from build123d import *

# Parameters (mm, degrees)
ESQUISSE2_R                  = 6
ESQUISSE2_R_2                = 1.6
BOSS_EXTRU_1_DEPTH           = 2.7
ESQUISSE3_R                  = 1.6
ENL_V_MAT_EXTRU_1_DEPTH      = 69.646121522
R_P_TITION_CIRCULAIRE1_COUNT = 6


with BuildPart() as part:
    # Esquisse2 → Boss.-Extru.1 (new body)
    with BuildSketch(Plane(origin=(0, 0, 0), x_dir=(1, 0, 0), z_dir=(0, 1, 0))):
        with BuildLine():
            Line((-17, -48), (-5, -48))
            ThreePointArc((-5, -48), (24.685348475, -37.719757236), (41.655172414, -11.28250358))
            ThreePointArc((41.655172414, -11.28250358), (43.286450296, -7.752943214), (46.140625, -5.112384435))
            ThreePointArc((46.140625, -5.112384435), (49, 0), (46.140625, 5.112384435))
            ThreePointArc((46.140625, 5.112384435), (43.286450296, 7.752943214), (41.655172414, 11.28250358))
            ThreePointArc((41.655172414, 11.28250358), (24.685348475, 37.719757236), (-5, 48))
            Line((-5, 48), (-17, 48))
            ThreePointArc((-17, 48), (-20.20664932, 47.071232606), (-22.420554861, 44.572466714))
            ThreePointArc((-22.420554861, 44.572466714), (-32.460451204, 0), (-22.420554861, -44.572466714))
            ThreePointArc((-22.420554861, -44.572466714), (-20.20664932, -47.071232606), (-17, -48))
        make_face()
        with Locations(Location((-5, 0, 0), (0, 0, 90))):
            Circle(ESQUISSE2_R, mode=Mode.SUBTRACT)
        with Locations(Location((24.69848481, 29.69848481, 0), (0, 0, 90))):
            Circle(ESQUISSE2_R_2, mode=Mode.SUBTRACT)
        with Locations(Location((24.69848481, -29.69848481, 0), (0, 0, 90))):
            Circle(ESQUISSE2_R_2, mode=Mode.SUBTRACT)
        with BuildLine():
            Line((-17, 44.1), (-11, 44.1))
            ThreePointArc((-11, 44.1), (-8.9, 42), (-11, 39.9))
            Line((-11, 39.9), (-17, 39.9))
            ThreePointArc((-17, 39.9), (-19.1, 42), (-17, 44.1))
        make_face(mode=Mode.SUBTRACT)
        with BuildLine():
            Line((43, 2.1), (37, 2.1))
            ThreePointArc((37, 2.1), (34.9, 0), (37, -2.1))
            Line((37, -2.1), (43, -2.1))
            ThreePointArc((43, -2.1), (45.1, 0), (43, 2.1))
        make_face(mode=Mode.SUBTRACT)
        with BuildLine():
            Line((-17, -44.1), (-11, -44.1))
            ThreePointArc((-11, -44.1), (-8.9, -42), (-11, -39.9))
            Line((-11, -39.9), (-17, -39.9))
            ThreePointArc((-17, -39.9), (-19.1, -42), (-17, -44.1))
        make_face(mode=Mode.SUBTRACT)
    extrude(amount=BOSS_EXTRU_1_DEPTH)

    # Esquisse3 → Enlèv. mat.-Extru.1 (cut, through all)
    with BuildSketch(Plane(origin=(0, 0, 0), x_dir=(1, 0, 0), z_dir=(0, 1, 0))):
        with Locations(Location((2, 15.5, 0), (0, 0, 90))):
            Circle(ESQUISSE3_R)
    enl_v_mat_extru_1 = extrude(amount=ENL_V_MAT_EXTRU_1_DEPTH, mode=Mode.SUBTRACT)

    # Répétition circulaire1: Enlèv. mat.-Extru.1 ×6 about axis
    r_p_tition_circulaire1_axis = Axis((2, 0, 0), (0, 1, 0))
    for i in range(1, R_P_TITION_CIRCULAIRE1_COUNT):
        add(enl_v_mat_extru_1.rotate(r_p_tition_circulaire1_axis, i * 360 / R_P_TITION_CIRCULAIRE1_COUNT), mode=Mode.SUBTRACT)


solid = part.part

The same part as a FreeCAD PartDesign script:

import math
import FreeCAD as App
import Part
import Sketcher

V = App.Vector

doc = App.newDocument("Part")
body = doc.addObject("PartDesign::Body", "Body")

# Sketch on XZ plane
sketch1 = body.newObject("Sketcher::SketchObject", "Sketch")
sketch1.AttachmentSupport = (doc.getObject("XZ_Plane"), [""])
sketch1.MapMode = "FlatFace"
sketch1.addGeometry([
    Part.LineSegment(V(-17, 48, 0), V(-5, 48, 0)),  # 0
    Part.ArcOfCircle(Part.Circle(V(-5, 0, 0), V(0, 0, 1), 48), math.radians(14), math.radians(90)),  # 1
    Part.ArcOfCircle(Part.Circle(V(51.4, 13.6, 0), V(0, 0, 1), 10), math.radians(-166), math.radians(-122)),  # 2
    Part.ArcOfCircle(Part.Circle(V(43, 0, 0), V(0, 0, 1), 6), math.radians(-58), math.radians(58)),  # 3
    Part.ArcOfCircle(Part.Circle(V(51.4, -13.6, 0), V(0, 0, 1), 10), math.radians(122), math.radians(166)),  # 4
    Part.ArcOfCircle(Part.Circle(V(-5, 0, 0), V(0, 0, 1), 48), math.radians(-90), math.radians(-14)),  # 5
    Part.LineSegment(V(-5, -48, 0), V(-17, -48, 0)),  # 6
    Part.ArcOfCircle(Part.Circle(V(-17, -42, 0), V(0, 0, 1), 6), math.radians(-155), math.radians(-90)),  # 7
    Part.ArcOfCircle(Part.Circle(V(71.5, 0, 0), V(0, 0, 1), 104), math.radians(155), math.radians(205)),  # 8
    Part.ArcOfCircle(Part.Circle(V(-17, 42, 0), V(0, 0, 1), 6), math.radians(90), math.radians(155)),  # 9
    Part.LineSegment(V(-11, 44.1, 0), V(-17, 44.1, 0)),  # 10
    Part.ArcOfCircle(Part.Circle(V(-17, 42, 0), V(0, 0, 1), 2.1), math.radians(90), math.radians(270)),  # 11
    Part.LineSegment(V(-17, 39.9, 0), V(-11, 39.9, 0)),  # 12
    Part.ArcOfCircle(Part.Circle(V(-11, 42, 0), V(0, 0, 1), 2.1), math.radians(-90), math.radians(90)),  # 13
    Part.Circle(V(24.7, 29.7, 0), V(0, 0, 1), 1.6),  # 14
    Part.Circle(V(-5, 0, 0), V(0, 0, 1), 6),  # 15
    Part.ArcOfCircle(Part.Circle(V(-17, -42, 0), V(0, 0, 1), 2.1), math.radians(90), math.radians(270)),  # 16
    Part.LineSegment(V(-17, -44.1, 0), V(-11, -44.1, 0)),  # 17
    Part.ArcOfCircle(Part.Circle(V(-11, -42, 0), V(0, 0, 1), 2.1), math.radians(-90), math.radians(90)),  # 18
    Part.LineSegment(V(-11, -39.9, 0), V(-17, -39.9, 0)),  # 19
    Part.LineSegment(V(37, -2.1, 0), V(43, -2.1, 0)),  # 20
    Part.ArcOfCircle(Part.Circle(V(43, 0, 0), V(0, 0, 1), 2.1), math.radians(-90), math.radians(90)),  # 21
    Part.LineSegment(V(43, 2.1, 0), V(37, 2.1, 0)),  # 22
    Part.ArcOfCircle(Part.Circle(V(37, 0, 0), V(0, 0, 1), 2.1), math.radians(90), math.radians(270)),  # 23
    Part.Circle(V(24.7, -29.7, 0), V(0, 0, 1), 1.6),  # 24
], False)
sketch1.addConstraint([
    Sketcher.Constraint("Tangent", 0, 2, 1, 2),
    Sketcher.Constraint("Tangent", 1, 1, 2, 1),
    Sketcher.Constraint("Tangent", 2, 2, 3, 2),
    Sketcher.Constraint("Tangent", 3, 1, 4, 1),
    Sketcher.Constraint("Tangent", 4, 2, 5, 2),
    Sketcher.Constraint("Tangent", 5, 1, 6, 1),
    Sketcher.Constraint("Tangent", 6, 2, 7, 2),
    Sketcher.Constraint("Tangent", 7, 1, 8, 2),
    Sketcher.Constraint("Tangent", 8, 1, 9, 2),
    Sketcher.Constraint("Tangent", 9, 1, 0, 1),
    Sketcher.Constraint("Tangent", 10, 2, 11, 1),
    Sketcher.Constraint("Tangent", 11, 2, 12, 1),
    Sketcher.Constraint("Tangent", 12, 2, 13, 1),
    Sketcher.Constraint("Tangent", 13, 2, 10, 1),
    Sketcher.Constraint("Tangent", 16, 2, 17, 1),
    Sketcher.Constraint("Tangent", 17, 2, 18, 1),
    Sketcher.Constraint("Tangent", 18, 2, 19, 1),
    Sketcher.Constraint("Tangent", 19, 2, 16, 1),
    Sketcher.Constraint("Tangent", 20, 2, 21, 1),
    Sketcher.Constraint("Tangent", 21, 2, 22, 1),
    Sketcher.Constraint("Tangent", 22, 2, 23, 1),
    Sketcher.Constraint("Tangent", 23, 2, 20, 1),
    Sketcher.Constraint("Horizontal", 0),
    Sketcher.Constraint("Horizontal", 6),
    Sketcher.Constraint("Horizontal", 10),
    Sketcher.Constraint("Horizontal", 12),
    Sketcher.Constraint("Horizontal", 17),
    Sketcher.Constraint("Horizontal", 19),
    Sketcher.Constraint("Horizontal", 20),
    Sketcher.Constraint("Horizontal", 22),
    Sketcher.Constraint("Coincident", 5, 3, 1, 3),
    Sketcher.Constraint("Coincident", 11, 3, 9, 3),
    Sketcher.Constraint("Coincident", 15, 3, 1, 3),
    Sketcher.Constraint("Coincident", 16, 3, 7, 3),
    Sketcher.Constraint("Coincident", 21, 3, 3, 3),
    Sketcher.Constraint("Equal", 2, 4),
    Sketcher.Constraint("Equal", 1, 5),
    Sketcher.Constraint("Equal", 3, 7),
    Sketcher.Constraint("Equal", 7, 9),
    Sketcher.Constraint("Equal", 9, 15),
    Sketcher.Constraint("Equal", 13, 16),
    Sketcher.Constraint("Equal", 18, 21),
    Sketcher.Constraint("Equal", 14, 24),
    Sketcher.Constraint("Symmetric", 2, 3, 4, 3, -1),
    Sketcher.Constraint("Symmetric", 14, 3, 24, 3, -1),
    Sketcher.Constraint("PointOnObject", 8, 3, -1),
    Sketcher.Constraint("Vertical", 13, 3, 18, 3),
    Sketcher.Constraint("Equal", 19, 20),
    Sketcher.Constraint("Diameter", 15, 12.0),
    Sketcher.Constraint("Radius", 1, 48.0),
    Sketcher.Constraint("Radius", 2, 10.0),
    Sketcher.Constraint("Diameter", 14, 3.2),
    Sketcher.Constraint("Radius", 11, 2.1),
    Sketcher.Constraint("DistanceX", 0, 1, 0, 2, 12.0),
    Sketcher.Constraint("DistanceX", 10, 2, 10, 1, 6.0),
    Sketcher.Constraint("DistanceX", 1, 3, -1, 1, 5.0),
    Sketcher.Constraint("DistanceX", -1, 1, 3, 3, 43.0),
    Sketcher.Constraint("DistanceX", -1, 1, 8, 3, 71.5),
    Sketcher.Constraint("DistanceY", 2, 3, 14, 3, 16.06546),
    Sketcher.Constraint("DistanceX", -1, 1, 14, 3, 24.698485),
])
pad1 = body.newObject("PartDesign::Pad", "Pad")
pad1.Profile = sketch1
pad1.Length = 2.7
pad1.Reversed = True

# Sketch on XZ plane
sketch2 = body.newObject("Sketcher::SketchObject", "Sketch001")
sketch2.AttachmentSupport = (doc.getObject("XZ_Plane"), [""])
sketch2.MapMode = "FlatFace"
sketch2.addGeometry(Part.Circle(V(2, -15.5, 0), V(0, 0, 1), 1.6), False)
sketch2.addConstraint([
    Sketcher.Constraint("Diameter", 0, 3.2),
    Sketcher.Constraint("DistanceX", -1, 1, 0, 3, 2.0),
    Sketcher.Constraint("DistanceY", 0, 3, -1, 1, 15.5),
])
pocket1 = body.newObject("PartDesign::Pocket", "Pocket")
pocket1.Profile = sketch2
pocket1.Type = "ThroughAll"
doc.recompute()

datumline = body.newObject("PartDesign::Line", "DatumLine")
datumline.Placement = App.Placement(V(2, 0, 0), App.Rotation(V(0, 0, 1), V(0, 1, 0)))
polarpattern = body.newObject("PartDesign::PolarPattern", "PolarPattern")
polarpattern.Originals = [pocket1]
polarpattern.Axis = (datumline, [""])
polarpattern.Angle = 360
polarpattern.Occurrences = 6
body.Tip = polarpattern

doc.recompute()
